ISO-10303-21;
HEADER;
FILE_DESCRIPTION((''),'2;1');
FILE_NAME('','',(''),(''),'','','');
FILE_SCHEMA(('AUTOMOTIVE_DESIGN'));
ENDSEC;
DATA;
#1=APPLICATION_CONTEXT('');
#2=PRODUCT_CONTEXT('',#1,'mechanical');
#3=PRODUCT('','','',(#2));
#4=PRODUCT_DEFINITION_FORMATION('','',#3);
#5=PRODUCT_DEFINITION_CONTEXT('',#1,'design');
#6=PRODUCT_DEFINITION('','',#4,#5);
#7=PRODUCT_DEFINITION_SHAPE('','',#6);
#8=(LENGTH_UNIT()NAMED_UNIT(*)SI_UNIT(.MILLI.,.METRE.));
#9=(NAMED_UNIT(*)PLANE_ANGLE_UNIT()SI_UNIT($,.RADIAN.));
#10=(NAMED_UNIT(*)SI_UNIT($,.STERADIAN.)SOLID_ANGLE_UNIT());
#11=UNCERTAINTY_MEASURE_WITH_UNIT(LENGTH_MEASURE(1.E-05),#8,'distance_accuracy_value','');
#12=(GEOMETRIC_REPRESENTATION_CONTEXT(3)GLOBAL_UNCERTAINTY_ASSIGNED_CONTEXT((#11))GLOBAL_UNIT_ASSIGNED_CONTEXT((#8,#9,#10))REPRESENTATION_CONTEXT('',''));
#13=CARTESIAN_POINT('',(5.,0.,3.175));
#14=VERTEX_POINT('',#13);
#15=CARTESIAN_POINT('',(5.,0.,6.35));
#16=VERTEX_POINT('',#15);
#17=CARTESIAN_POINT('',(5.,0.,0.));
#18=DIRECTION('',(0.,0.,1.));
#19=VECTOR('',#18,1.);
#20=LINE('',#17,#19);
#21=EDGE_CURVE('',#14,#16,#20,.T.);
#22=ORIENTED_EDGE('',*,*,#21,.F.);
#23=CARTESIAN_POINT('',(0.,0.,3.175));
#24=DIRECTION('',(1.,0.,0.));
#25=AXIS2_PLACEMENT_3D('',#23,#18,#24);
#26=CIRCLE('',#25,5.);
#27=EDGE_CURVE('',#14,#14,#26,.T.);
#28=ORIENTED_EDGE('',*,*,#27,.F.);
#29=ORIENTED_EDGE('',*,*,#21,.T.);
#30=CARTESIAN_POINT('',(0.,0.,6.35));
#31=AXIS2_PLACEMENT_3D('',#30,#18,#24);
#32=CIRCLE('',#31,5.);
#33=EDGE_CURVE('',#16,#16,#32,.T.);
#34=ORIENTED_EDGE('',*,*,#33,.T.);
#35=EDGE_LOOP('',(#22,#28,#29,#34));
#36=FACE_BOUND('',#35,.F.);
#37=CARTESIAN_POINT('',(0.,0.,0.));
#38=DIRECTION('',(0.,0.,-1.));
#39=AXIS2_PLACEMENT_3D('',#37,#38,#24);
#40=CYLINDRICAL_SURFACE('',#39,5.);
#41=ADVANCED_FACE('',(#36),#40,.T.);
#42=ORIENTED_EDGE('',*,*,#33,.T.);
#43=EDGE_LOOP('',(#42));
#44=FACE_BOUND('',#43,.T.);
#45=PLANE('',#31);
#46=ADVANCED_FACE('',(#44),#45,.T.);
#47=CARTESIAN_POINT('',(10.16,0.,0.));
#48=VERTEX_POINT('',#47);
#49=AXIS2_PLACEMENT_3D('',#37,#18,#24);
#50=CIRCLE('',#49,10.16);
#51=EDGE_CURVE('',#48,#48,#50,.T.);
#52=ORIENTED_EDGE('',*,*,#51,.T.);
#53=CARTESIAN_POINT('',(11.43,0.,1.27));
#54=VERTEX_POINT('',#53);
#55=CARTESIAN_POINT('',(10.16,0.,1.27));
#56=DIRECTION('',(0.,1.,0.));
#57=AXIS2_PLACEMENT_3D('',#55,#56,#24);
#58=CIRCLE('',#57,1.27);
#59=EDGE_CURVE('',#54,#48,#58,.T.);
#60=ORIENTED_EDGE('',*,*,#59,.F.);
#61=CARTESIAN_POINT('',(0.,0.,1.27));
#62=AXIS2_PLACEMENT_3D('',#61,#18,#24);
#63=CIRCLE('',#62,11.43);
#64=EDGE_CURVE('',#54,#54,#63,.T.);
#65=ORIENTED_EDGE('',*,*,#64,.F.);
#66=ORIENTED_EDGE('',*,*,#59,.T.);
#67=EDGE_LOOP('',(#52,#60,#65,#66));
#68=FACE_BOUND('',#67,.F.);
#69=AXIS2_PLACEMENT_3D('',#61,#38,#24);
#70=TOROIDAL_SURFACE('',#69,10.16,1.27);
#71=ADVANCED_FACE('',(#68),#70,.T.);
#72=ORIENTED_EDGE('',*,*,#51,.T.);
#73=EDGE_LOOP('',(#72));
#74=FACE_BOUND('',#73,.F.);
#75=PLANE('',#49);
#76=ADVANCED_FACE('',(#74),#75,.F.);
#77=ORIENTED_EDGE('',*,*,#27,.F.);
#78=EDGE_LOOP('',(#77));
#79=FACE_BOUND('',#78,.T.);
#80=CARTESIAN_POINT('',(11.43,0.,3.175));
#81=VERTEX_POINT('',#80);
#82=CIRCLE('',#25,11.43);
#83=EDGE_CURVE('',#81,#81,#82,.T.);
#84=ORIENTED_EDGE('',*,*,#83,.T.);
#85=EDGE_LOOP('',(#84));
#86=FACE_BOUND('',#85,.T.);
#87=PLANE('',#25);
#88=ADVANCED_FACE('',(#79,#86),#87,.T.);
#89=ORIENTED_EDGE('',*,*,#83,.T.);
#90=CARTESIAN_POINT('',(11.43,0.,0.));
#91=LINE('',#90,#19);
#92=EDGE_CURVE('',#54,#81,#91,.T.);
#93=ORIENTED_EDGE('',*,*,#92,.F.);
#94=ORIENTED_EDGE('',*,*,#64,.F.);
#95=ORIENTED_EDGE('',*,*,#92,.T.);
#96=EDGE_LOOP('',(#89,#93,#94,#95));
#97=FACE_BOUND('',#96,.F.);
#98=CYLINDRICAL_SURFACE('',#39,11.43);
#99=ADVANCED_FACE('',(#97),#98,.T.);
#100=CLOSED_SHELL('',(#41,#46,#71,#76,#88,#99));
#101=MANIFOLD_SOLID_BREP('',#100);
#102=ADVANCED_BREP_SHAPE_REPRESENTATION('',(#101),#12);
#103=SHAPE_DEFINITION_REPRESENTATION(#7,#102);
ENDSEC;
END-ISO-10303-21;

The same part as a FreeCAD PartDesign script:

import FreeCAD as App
import Part
import Sketcher
from FreeCAD import Vector
Q = App.Units.Quantity


def edges_at(feature, points):
    """Names of the edges that pass closest to the given points."""
    edges = feature.Shape.Edges
    near = lambda p: min(range(len(edges)), key=lambda i: edges[i].distToShape(Part.Vertex(*p))[0])
    return sorted({f"Edge{near(p) + 1}" for p in points})

doc = App.newDocument("Part")
body = doc.addObject("PartDesign::Body", "Body")

# Sketch on XY plane
sketch1 = body.newObject("Sketcher::SketchObject", "Sketch")
sketch1.AttachmentSupport = (doc.getObject("XY_Plane"), [""])
sketch1.MapMode = "FlatFace"
sketch1.addGeometry(Part.Circle(Vector(0, 0, 0), Vector(0, 0, 1), 5), False)
sketch1.addConstraint([
    Sketcher.Constraint("Coincident", 0, 3, -1, 1),
    Sketcher.Constraint("Diameter", 0, 10.0),
])
pad1 = body.newObject("PartDesign::Pad", "Pad")
pad1.Profile = sketch1
pad1.Length = Q("0.25 in")

# Sketch on XY plane
sketch2 = body.newObject("Sketcher::SketchObject", "Sketch001")
sketch2.AttachmentSupport = (doc.getObject("XY_Plane"), [""])
sketch2.MapMode = "FlatFace"
sketch2.addGeometry([
    Part.Circle(Vector(0, 0, 0), Vector(0, 0, 1), 11.43),
    Part.Circle(Vector(0, 0, 0), Vector(0, 0, 1), 5),
], False)
sketch2.addConstraint([
    Sketcher.Constraint("Coincident", 0, 3, -1, 1),
    Sketcher.Constraint("Coincident", 1, 3, -1, 1),
    Sketcher.Constraint("Diameter", 0, Q("0.9 in")),
    Sketcher.Constraint("Diameter", 1, 10.0),
])
pad2 = body.newObject("PartDesign::Pad", "Pad001")
pad2.Profile = sketch2
pad2.Length = Q("0.125 in")
doc.recompute()

fillet = body.newObject("PartDesign::Fillet", "Fillet")
fillet.Base = (pad2, edges_at(pad2, [(-11.43, 0, 0)]))
fillet.Radius = Q("0.05 in")

doc.recompute()
